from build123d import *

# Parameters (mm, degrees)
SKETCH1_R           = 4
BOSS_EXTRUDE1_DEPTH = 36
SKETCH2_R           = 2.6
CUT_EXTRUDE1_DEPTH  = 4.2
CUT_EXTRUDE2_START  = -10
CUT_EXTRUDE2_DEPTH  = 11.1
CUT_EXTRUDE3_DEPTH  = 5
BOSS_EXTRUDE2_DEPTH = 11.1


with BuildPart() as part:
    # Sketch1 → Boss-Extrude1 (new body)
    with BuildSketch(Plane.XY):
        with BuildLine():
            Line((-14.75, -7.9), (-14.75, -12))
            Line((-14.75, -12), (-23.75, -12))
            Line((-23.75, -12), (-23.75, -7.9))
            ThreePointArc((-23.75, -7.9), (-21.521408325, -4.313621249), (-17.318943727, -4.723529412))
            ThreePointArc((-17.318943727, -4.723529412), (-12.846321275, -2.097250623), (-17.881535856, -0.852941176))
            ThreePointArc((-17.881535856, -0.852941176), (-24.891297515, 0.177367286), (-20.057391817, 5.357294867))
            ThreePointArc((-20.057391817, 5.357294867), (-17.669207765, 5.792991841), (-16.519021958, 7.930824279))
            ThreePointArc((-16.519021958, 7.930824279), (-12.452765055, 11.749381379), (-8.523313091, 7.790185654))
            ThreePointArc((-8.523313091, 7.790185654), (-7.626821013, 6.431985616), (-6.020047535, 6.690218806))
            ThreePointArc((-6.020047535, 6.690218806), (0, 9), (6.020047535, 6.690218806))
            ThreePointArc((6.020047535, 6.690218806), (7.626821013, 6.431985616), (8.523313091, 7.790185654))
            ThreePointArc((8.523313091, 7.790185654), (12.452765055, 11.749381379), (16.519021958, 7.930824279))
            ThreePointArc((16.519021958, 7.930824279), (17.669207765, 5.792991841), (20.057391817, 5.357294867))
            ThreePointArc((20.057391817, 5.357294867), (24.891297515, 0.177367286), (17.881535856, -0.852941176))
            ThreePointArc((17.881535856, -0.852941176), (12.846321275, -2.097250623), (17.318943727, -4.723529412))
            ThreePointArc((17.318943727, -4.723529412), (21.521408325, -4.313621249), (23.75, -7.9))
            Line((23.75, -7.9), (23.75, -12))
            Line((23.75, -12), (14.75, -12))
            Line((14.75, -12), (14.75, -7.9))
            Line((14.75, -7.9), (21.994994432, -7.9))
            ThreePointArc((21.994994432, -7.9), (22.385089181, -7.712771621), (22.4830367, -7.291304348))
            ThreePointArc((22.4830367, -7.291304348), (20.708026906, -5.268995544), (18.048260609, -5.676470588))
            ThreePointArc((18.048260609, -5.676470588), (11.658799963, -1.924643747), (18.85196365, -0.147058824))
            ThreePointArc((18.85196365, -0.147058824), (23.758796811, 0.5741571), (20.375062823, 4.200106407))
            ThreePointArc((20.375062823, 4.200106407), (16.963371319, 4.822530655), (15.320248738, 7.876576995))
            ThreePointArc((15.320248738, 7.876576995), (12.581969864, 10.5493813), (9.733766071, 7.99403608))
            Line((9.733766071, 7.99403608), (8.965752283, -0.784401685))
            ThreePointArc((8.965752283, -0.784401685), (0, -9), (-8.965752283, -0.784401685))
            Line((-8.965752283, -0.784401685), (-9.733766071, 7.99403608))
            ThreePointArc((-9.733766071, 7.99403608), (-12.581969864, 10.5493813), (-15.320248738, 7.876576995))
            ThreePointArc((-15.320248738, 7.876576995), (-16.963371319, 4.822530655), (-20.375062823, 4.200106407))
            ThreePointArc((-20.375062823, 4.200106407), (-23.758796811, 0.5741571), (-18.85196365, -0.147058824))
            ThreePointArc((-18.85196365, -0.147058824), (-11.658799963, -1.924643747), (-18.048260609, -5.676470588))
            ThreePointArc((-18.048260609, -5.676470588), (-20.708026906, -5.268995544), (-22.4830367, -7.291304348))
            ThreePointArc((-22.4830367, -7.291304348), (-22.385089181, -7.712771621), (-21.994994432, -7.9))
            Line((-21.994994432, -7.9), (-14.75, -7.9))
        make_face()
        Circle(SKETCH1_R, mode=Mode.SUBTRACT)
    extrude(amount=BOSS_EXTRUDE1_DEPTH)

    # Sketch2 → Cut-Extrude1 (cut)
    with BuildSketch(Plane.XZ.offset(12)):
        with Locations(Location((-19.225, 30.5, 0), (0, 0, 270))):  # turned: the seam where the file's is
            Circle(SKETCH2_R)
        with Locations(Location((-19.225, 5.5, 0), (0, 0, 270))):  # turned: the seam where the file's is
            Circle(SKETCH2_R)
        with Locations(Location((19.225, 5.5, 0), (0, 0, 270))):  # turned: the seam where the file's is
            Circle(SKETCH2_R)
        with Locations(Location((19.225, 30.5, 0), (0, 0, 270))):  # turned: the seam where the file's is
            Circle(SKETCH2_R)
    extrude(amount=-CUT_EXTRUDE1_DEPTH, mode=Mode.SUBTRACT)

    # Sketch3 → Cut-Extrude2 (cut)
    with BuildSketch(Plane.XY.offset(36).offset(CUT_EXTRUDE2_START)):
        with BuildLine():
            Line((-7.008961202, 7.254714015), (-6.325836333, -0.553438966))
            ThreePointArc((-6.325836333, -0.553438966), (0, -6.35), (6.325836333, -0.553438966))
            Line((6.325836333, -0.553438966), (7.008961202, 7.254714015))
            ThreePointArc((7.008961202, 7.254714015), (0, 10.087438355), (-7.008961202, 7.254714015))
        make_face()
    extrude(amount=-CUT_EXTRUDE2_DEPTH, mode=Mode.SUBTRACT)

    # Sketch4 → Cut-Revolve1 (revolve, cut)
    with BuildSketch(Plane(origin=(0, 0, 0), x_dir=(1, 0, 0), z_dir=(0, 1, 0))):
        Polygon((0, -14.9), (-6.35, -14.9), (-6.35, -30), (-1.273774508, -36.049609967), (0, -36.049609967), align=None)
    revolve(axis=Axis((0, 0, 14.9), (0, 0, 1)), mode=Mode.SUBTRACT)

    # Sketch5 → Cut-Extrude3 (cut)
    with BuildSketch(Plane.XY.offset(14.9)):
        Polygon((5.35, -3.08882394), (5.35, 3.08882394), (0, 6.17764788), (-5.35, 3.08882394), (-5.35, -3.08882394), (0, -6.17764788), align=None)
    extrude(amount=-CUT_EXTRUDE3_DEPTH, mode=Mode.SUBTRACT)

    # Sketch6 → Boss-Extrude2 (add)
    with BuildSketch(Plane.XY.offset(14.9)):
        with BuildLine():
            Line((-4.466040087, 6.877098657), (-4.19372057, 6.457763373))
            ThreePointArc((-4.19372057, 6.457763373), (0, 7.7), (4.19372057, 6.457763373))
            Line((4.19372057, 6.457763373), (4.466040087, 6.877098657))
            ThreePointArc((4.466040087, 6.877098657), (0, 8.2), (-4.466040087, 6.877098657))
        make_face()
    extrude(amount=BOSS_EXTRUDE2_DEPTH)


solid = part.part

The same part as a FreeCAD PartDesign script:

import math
import FreeCAD as App
import Part
import Sketcher

V = App.Vector
Q = App.Units.Quantity

doc = App.newDocument("Part")
body = doc.addObject("PartDesign::Body", "Body")

# Sketch on XY plane
sketch1 = body.newObject("Sketcher::SketchObject", "Sketch")
sketch1.AttachmentSupport = (doc.getObject("XY_Plane"), [""])
sketch1.MapMode = "FlatFace"
sketch1.addGeometry([
    Part.LineSegment(V(-14.8, -12, 0), V(-14.8, -7.9, 0)),  # 0
    Part.LineSegment(V(-14.8, -7.9, 0), V(-22, -7.9, 0)),  # 1
    Part.ArcOfCircle(Part.Circle(V(-22, -7.4, 0), V(0, 0, 1), 0.5), math.radians(167), math.radians(270)),  # 2
    Part.ArcOfCircle(Part.Circle(V(-19.8, -7.9, 0), V(0, 0, 1), 2.8), math.radians(53), math.radians(167)),  # 3
    Part.ArcOfCircle(Part.Circle(V(-15.6, -2.5, 0), V(0, 0, 1), 4), math.radians(-127), math.radians(144)),  # 4
    Part.ArcOfCircle(Part.Circle(V(-21.1, 1.5, 0), V(0, 0, 1), 2.8), math.radians(75), math.radians(324)),  # 5
    Part.ArcOfCircle(Part.Circle(V(-19.3, 8.1, 0), V(0, 0, 1), 4), math.radians(-105), math.radians(-3)),  # 6
    Part.ArcOfCircle(Part.Circle(V(-12.5, 7.8, 0), V(0, 0, 1), 2.8), math.radians(5), math.radians(177)),  # 7
    Part.LineSegment(V(-9.7, 8, 0), V(-9, -0.8, 0)),  # 8
    Part.ArcOfCircle(Part.Circle(V(0, 0, 0), V(0, 0, 1), 9), math.radians(-175), math.radians(-5)),  # 9
    Part.LineSegment(V(9, -0.8, 0), V(9.7, 8, 0)),  # 10
    Part.ArcOfCircle(Part.Circle(V(12.5, 7.8, 0), V(0, 0, 1), 2.8), math.radians(3), math.radians(175)),  # 11
    Part.ArcOfCircle(Part.Circle(V(19.3, 8.1, 0), V(0, 0, 1), 4), math.radians(-177), math.radians(-75)),  # 12
    Part.ArcOfCircle(Part.Circle(V(21.1, 1.5, 0), V(0, 0, 1), 2.8), math.radians(-144), math.radians(105)),  # 13
    Part.ArcOfCircle(Part.Circle(V(15.6, -2.5, 0), V(0, 0, 1), 4), math.radians(36), math.radians(307)),  # 14
    Part.ArcOfCircle(Part.Circle(V(19.8, -7.9, 0), V(0, 0, 1), 2.8), math.radians(13), math.radians(127)),  # 15
    Part.ArcOfCircle(Part.Circle(V(22, -7.4, 0), V(0, 0, 1), 0.5), math.radians(-90), math.radians(13)),  # 16
    Part.LineSegment(V(22, -7.9, 0), V(14.8, -7.9, 0)),  # 17
    Part.LineSegment(V(14.8, -7.9, 0), V(14.8, -12, 0)),  # 18
    Part.LineSegment(V(14.8, -12, 0), V(23.8, -12, 0)),  # 19
    Part.LineSegment(V(23.8, -12, 0), V(23.8, -7.9, 0)),  # 20
    Part.ArcOfCircle(Part.Circle(V(19.8, -7.9, 0), V(0, 0, 1), 4), math.radians(0), math.radians(127)),  # 21
    Part.ArcOfCircle(Part.Circle(V(15.6, -2.5, 0), V(0, 0, 1), 2.8), math.radians(36), math.radians(307)),  # 22
    Part.ArcOfCircle(Part.Circle(V(21.1, 1.5, 0), V(0, 0, 1), 4), math.radians(-144), math.radians(105)),  # 23
    Part.ArcOfCircle(Part.Circle(V(19.3, 8.1, 0), V(0, 0, 1), 2.8), math.radians(-177), math.radians(-75)),  # 24
    Part.ArcOfCircle(Part.Circle(V(12.5, 7.7, 0), V(0, 0, 1), 4), math.radians(3), math.radians(179)),  # 25
    Part.ArcOfCircle(Part.Circle(V(7, 7.8, 0), V(0, 0, 1), 1.5), math.radians(-132), math.radians(-1)),  # 26
    Part.ArcOfCircle(Part.Circle(V(0, 0, 0), V(0, 0, 1), 9), math.radians(48), math.radians(132)),  # 27
    Part.ArcOfCircle(Part.Circle(V(-7, 7.8, 0), V(0, 0, 1), 1.5), math.radians(-179), math.radians(-48)),  # 28
    Part.ArcOfCircle(Part.Circle(V(-12.5, 7.7, 0), V(0, 0, 1), 4), math.radians(1), math.radians(177)),  # 29
    Part.ArcOfCircle(Part.Circle(V(-19.3, 8.1, 0), V(0, 0, 1), 2.8), math.radians(-105), math.radians(-3)),  # 30
    Part.ArcOfCircle(Part.Circle(V(-21.1, 1.5, 0), V(0, 0, 1), 4), math.radians(75), math.radians(324)),  # 31
    Part.ArcOfCircle(Part.Circle(V(-15.6, -2.5, 0), V(0, 0, 1), 2.8), math.radians(-127), math.radians(144)),  # 32
    Part.ArcOfCircle(Part.Circle(V(-19.8, -7.9, 0), V(0, 0, 1), 4), math.radians(53), math.radians(180)),  # 33
    Part.LineSegment(V(-23.8, -7.9, 0), V(-23.8, -12, 0)),  # 34
    Part.LineSegment(V(-23.8, -12, 0), V(-14.8, -12, 0)),  # 35
    Part.Circle(V(0, 0, 0), V(0, 0, 1), 4),  # 36
], False)
sketch1.addConstraint([
    Sketcher.Constraint("Coincident", 0, 2, 1, 1),
    Sketcher.Constraint("Tangent", 1, 2, 2, 2),
    Sketcher.Constraint("Tangent", 2, 1, 3, 2),
    Sketcher.Constraint("Tangent", 3, 1, 4, 1),
    Sketcher.Constraint("Tangent", 4, 2, 5, 2),
    Sketcher.Constraint("Tangent", 5, 1, 6, 1),
    Sketcher.Constraint("Tangent", 6, 2, 7, 2),
    Sketcher.Constraint("Tangent", 7, 1, 8, 1),
    Sketcher.Constraint("Tangent", 8, 2, 9, 1),
    Sketcher.Constraint("Tangent", 9, 2, 10, 1),
    Sketcher.Constraint("Tangent", 10, 2, 11, 2),
    Sketcher.Constraint("Tangent", 11, 1, 12, 1),
    Sketcher.Constraint("Tangent", 12, 2, 13, 2),
    Sketcher.Constraint("Tangent", 13, 1, 14, 1),
    Sketcher.Constraint("Tangent", 14, 2, 15, 2),
    Sketcher.Constraint("Tangent", 15, 1, 16, 2),
    Sketcher.Constraint("Tangent", 16, 1, 17, 1),
    Sketcher.Constraint("Coincident", 17, 2, 18, 1),
    Sketcher.Constraint("Coincident", 18, 2, 19, 1),
    Sketcher.Constraint("Coincident", 19, 2, 20, 1),
    Sketcher.Constraint("Tangent", 20, 2, 21, 1),
    Sketcher.Constraint("Tangent", 21, 2, 22, 2),
    Sketcher.Constraint("Tangent", 22, 1, 23, 1),
    Sketcher.Constraint("Tangent", 23, 2, 24, 2),
    Sketcher.Constraint("Tangent", 24, 1, 25, 1),
    Sketcher.Constraint("Tangent", 25, 2, 26, 2),
    Sketcher.Constraint("Tangent", 26, 1, 27, 1),
    Sketcher.Constraint("Tangent", 27, 2, 28, 2),
    Sketcher.Constraint("Tangent", 28, 1, 29, 1),
    Sketcher.Constraint("Tangent", 29, 2, 30, 2),
    Sketcher.Constraint("Tangent", 30, 1, 31, 1),
    Sketcher.Constraint("Tangent", 31, 2, 32, 2),
    Sketcher.Constraint("Tangent", 32, 1, 33, 1),
    Sketcher.Constraint("Tangent", 33, 2, 34, 1),
    Sketcher.Constraint("Coincident", 34, 2, 35, 1),
    Sketcher.Constraint("Coincident", 35, 2, 0, 1),
    Sketcher.Constraint("Vertical", 0),
    Sketcher.Constraint("Horizontal", 1),
    Sketcher.Constraint("Horizontal", 17),
    Sketcher.Constraint("Vertical", 18),
    Sketcher.Constraint("Horizontal", 19),
    Sketcher.Constraint("Vertical", 20),
    Sketcher.Constraint("Vertical", 34),
    Sketcher.Constraint("Horizontal", 35),
    Sketcher.Constraint("Coincident", 9, 3, -1, 1),
    Sketcher.Constraint("Coincident", 27, 3, -1, 1),
    Sketcher.Constraint("Coincident", 36, 3, -1, 1),
    Sketcher.Constraint("Coincident", 21, 3, 15, 3),
    Sketcher.Constraint("Coincident", 22, 3, 14, 3),
    Sketcher.Constraint("Coincident", 23, 3, 13, 3),
    Sketcher.Constraint("Coincident", 24, 3, 12, 3),
    Sketcher.Constraint("Coincident", 25, 3, 11, 3),
    Sketcher.Constraint("Coincident", 29, 3, 7, 3),
    Sketcher.Constraint("Coincident", 30, 3, 6, 3),
    Sketcher.Constraint("Coincident", 31, 3, 5, 3),
    Sketcher.Constraint("Coincident", 32, 3, 4, 3),
    Sketcher.Constraint("Coincident", 33, 3, 3, 3),
    Sketcher.Constraint("Equal", 3, 5),
    Sketcher.Constraint("Equal", 4, 6),
    Sketcher.Constraint("Equal", 5, 7),
    Sketcher.Constraint("Equal", 7, 11),
    Sketcher.Constraint("Equal", 6, 12),
    Sketcher.Constraint("Equal", 11, 13),
    Sketcher.Constraint("Equal", 12, 14),
    Sketcher.Constraint("Equal", 13, 15),
    Sketcher.Constraint("Equal", 2, 16),
    Sketcher.Constraint("Equal", 14, 21),
    Sketcher.Constraint("Equal", 9, 27),
    Sketcher.Constraint("Equal", 26, 28),
    Sketcher.Constraint("Equal", 25, 29),
    Sketcher.Constraint("Equal", 33, 36),
    Sketcher.Constraint("Symmetric", 7, 3, 11, 3, -2),
    Sketcher.Constraint("Symmetric", 5, 3, 13, 3, -2),
    Sketcher.Constraint("Symmetric", 3, 3, 15, 3, -2),
    Sketcher.Constraint("Symmetric", 0, 2, 17, 2, -2),
    Sketcher.Constraint("Horizontal", 33, 3, 0, 2),
    Sketcher.Constraint("Horizontal", 19, 2, 34, 2),
    Sketcher.Constraint("Diameter", 36, Q("8 mm")),
    Sketcher.Constraint("Radius", 9, Q("9 mm")),
    Sketcher.Constraint("Radius", 2, Q("0.5 mm")),
    Sketcher.Constraint("Radius", 3, Q("2.8 mm")),
    Sketcher.Constraint("Radius", 26, Q("1.5 mm")),
    Sketcher.Constraint("DistanceX", 19, 1, 19, 2, Q("9 mm")),
    Sketcher.Constraint("Angle", 8, Q("-85 deg")),
    Sketcher.Constraint("DistanceY", 0, 1, 0, 2, Q("4.1 mm")),
    Sketcher.Constraint("DistanceY", 18, 2, -1, 1, Q("12 mm")),
    Sketcher.Constraint("DistanceY", 4, 3, -1, 1, Q("2.5 mm")),
    Sketcher.Constraint("DistanceY", -1, 1, 5, 3, Q("1.5 mm")),
    Sketcher.Constraint("DistanceX", 3, 3, -1, 1, Q("19.75 mm")),
    Sketcher.Constraint("DistanceY", -1, 1, 7, 3, Q("7.75 mm")),
])
pad1 = body.newObject("PartDesign::Pad", "Pad")
pad1.Profile = sketch1
pad1.Length = 36

# Sketch on XZ plane
sketch2 = body.newObject("Sketcher::SketchObject", "Sketch001")
sketch2.AttachmentSupport = (doc.getObject("XZ_Plane"), [""])
sketch2.MapMode = "FlatFace"
sketch2.AttachmentOffset = App.Placement(V(0, 0, 12), App.Rotation())
sketch2.addGeometry([
    Part.Circle(V(-19.2, 30.5, 0), V(0, 0, 1), 2.6),
    Part.Circle(V(-19.2, 5.5, 0), V(0, 0, 1), 2.6),
    Part.Circle(V(19.2, 5.5, 0), V(0, 0, 1), 2.6),
    Part.Circle(V(19.2, 30.5, 0), V(0, 0, 1), 2.6),
], False)
sketch2.addConstraint([
    Sketcher.Constraint("Equal", 0, 1),
    Sketcher.Constraint("Equal", 1, 2),
    Sketcher.Constraint("Equal", 2, 3),
    Sketcher.Constraint("Symmetric", 1, 3, 2, 3, -2),
    Sketcher.Constraint("Symmetric", 0, 3, 3, 3, -2),
    Sketcher.Constraint("Vertical", 0, 3, 1, 3),
    Sketcher.Constraint("Diameter", 0, Q("5.2 mm")),
    Sketcher.Constraint("DistanceY", 1, 3, 0, 3, Q("25 mm")),
    Sketcher.Constraint("DistanceY", -1, 1, 0, 3, Q("30.5 mm")),
    Sketcher.Constraint("DistanceX", 1, 3, 2, 3, Q("38.45 mm")),
])
pocket1 = body.newObject("PartDesign::Pocket", "Pocket")
pocket1.Profile = sketch2
pocket1.Length = 4.2

# Sketch on XY plane
sketch3 = body.newObject("Sketcher::SketchObject", "Sketch002")
sketch3.AttachmentSupport = (doc.getObject("XY_Plane"), [""])
sketch3.MapMode = "FlatFace"
sketch3.AttachmentOffset = App.Placement(V(0, 0, 26), App.Rotation())
sketch3.addGeometry([
    Part.LineSegment(V(-7, 7, 0), V(-6, -1, 0)),
    Part.ArcOfCircle(Part.Circle(V(0, 0, 0), V(0, 0, 1), 6), math.radians(-175), math.radians(-5)),
    Part.LineSegment(V(6, -1, 0), V(7, 7, 0)),
    Part.ArcOfCircle(Part.Circle(V(0, 0, 0), V(0, 0, 1), 10), math.radians(46), math.radians(134)),
], False)
sketch3.addConstraint([
    Sketcher.Constraint("Tangent", 0, 2, 1, 1),
    Sketcher.Constraint("Tangent", 1, 2, 2, 1),
    Sketcher.Constraint("Coincident", 2, 2, 3, 1),
    Sketcher.Constraint("Coincident", 3, 2, 0, 1),
    Sketcher.Constraint("Coincident", 1, 3, -1, 1),
    Sketcher.Constraint("Coincident", 3, 3, -1, 1),
    Sketcher.Constraint("Horizontal", 0, 2, 1, 2),
    Sketcher.Constraint("Angle", 0, Q("-85 deg")),
    Sketcher.Constraint("Radius", 1, Q("6.35 mm")),
    Sketcher.Constraint("Radius", 3, Q("10.087438 mm")),
])
pocket2 = body.newObject("PartDesign::Pocket", "Pocket001")
pocket2.Profile = sketch3
pocket2.Length = 11.1

# Sketch on XZ plane
sketch4 = body.newObject("Sketcher::SketchObject", "Sketch003")
sketch4.AttachmentSupport = (doc.getObject("XZ_Plane"), [""])
sketch4.MapMode = "FlatFace"
sketch4.addGeometry([
    Part.LineSegment(V(0, 14.9, 0), V(-6.3, 14.9, 0)),  # 0
    Part.LineSegment(V(-6.3, 14.9, 0), V(-6.3, 30, 0)),  # 1
    Part.LineSegment(V(-6.3, 30, 0), V(-1.3, 36, 0)),  # 2
    Part.LineSegment(V(-1.3, 36, 0), V(0, 36, 0)),  # 3
    Part.LineSegment(V(0, 36, 0), V(0, 14.9, 0)),  # 4
], False)
sketch4.addConstraint([
    Sketcher.Constraint("Coincident", 0, 2, 1, 1),
    Sketcher.Constraint("Coincident", 1, 2, 2, 1),
    Sketcher.Constraint("Coincident", 2, 2, 3, 1),
    Sketcher.Constraint("Coincident", 3, 2, 4, 1),
    Sketcher.Constraint("Coincident", 4, 2, 0, 1),
    Sketcher.Constraint("Horizontal", 0),
    Sketcher.Constraint("Vertical", 1),
    Sketcher.Constraint("Horizontal", 3),
    Sketcher.Constraint("Vertical", 4),
    Sketcher.Constraint("PointOnObject", 3, 2, -2),
    Sketcher.Constraint("Angle", 2, Q("50 deg")),
    Sketcher.Constraint("DistanceY", 1, 1, 1, 2, Q("15.1 mm")),
    Sketcher.Constraint("DistanceY", -1, 1, 1, 2, Q("30 mm")),
    Sketcher.Constraint("DistanceX", 0, 2, 0, 1, Q("6.35 mm")),
    Sketcher.Constraint("DistanceY", 4, 2, 4, 1, Q("21.14961 mm")),
])
groove = body.newObject("PartDesign::Groove", "Groove")
groove.Profile = sketch4
groove.ReferenceAxis = (sketch4, ["V_Axis"])
groove.Angle = 360

# Sketch on XY plane
sketch5 = body.newObject("Sketcher::SketchObject", "Sketch004")
sketch5.AttachmentSupport = (doc.getObject("XY_Plane"), [""])
sketch5.MapMode = "FlatFace"
sketch5.AttachmentOffset = App.Placement(V(0, 0, 14.9), App.Rotation())
sketch5.addGeometry([
    Part.LineSegment(V(5, -3, 0), V(5, 3, 0)),  # 0
    Part.LineSegment(V(5, 3, 0), V(0, 6, 0)),  # 1
    Part.LineSegment(V(0, 6, 0), V(-5, 3, 0)),  # 2
    Part.LineSegment(V(-5, 3, 0), V(-5, -3, 0)),  # 3
    Part.LineSegment(V(-5, -3, 0), V(0, -6, 0)),  # 4
    Part.LineSegment(V(0, -6, 0), V(5, -3, 0)),  # 5
], False)
sketch5.addConstraint([
    Sketcher.Constraint("Coincident", 0, 2, 1, 1),
    Sketcher.Constraint("Coincident", 1, 2, 2, 1),
    Sketcher.Constraint("Coincident", 2, 2, 3, 1),
    Sketcher.Constraint("Coincident", 3, 2, 4, 1),
    Sketcher.Constraint("Coincident", 4, 2, 5, 1),
    Sketcher.Constraint("Coincident", 5, 2, 0, 1),
    Sketcher.Constraint("Vertical", 0),
    Sketcher.Constraint("Vertical", 3),
    Sketcher.Constraint("Symmetric", 0, 2, 3, 2, -1, 1),
    Sketcher.Constraint("Symmetric", 1, 2, 4, 2, -1, 1),
    Sketcher.Constraint("PointOnObject", 1, 2, -2),
    Sketcher.Constraint("Parallel", 2, 5),
    Sketcher.Constraint("Horizontal", 0, 2, 2, 2),
    Sketcher.Constraint("Angle", 1, Q("150 deg")),
    Sketcher.Constraint("DistanceX", 2, 2, 0, 2, Q("10.7 mm")),
    Sketcher.Constraint("DistanceY", 0, 1, 0, 2, Q("6.177648 mm")),
])
pocket3 = body.newObject("PartDesign::Pocket", "Pocket002")
pocket3.Profile = sketch5
pocket3.Length = 5

# Sketch on XY plane
sketch6 = body.newObject("Sketcher::SketchObject", "Sketch005")
sketch6.AttachmentSupport = (doc.getObject("XY_Plane"), [""])
sketch6.MapMode = "FlatFace"
sketch6.AttachmentOffset = App.Placement(V(0, 0, 14.9), App.Rotation())
sketch6.addGeometry([
    Part.LineSegment(V(-4.47, 6.88, 0), V(-4.19, 6.46, 0)),
    Part.ArcOfCircle(Part.Circle(V(0, 0, 0), V(0, 0, 1), 7.7), math.radians(57), math.radians(123)),
    Part.LineSegment(V(4.19, 6.46, 0), V(4.47, 6.88, 0)),
    Part.ArcOfCircle(Part.Circle(V(0, 0, 0), V(0, 0, 1), 8.2), math.radians(57), math.radians(123)),
], False)
sketch6.addConstraint([
    Sketcher.Constraint("Coincident", 0, 2, 1, 2),
    Sketcher.Constraint("Coincident", 1, 1, 2, 1),
    Sketcher.Constraint("Coincident", 2, 2, 3, 1),
    Sketcher.Constraint("Coincident", 3, 2, 0, 1),
    Sketcher.Constraint("Coincident", 1, 3, -1, 1),
    Sketcher.Constraint("Coincident", 3, 3, -1, 1),
    Sketcher.Constraint("Horizontal", 0, 2, 1, 1),
    Sketcher.Constraint("Horizontal", 2, 2, 3, 2),
    Sketcher.Constraint("Radius", 1, Q("7.7 mm")),
    Sketcher.Constraint("Radius", 3, Q("8.2 mm")),
    Sketcher.Constraint("Angle", 0, Q("-57 deg")),
    Sketcher.Constraint("DistanceY", -1, 1, 2, 2, Q("6.877099 mm")),
])
pad2 = body.newObject("PartDesign::Pad", "Pad001")
pad2.Profile = sketch6
pad2.Length = 11.1

doc.recompute()
